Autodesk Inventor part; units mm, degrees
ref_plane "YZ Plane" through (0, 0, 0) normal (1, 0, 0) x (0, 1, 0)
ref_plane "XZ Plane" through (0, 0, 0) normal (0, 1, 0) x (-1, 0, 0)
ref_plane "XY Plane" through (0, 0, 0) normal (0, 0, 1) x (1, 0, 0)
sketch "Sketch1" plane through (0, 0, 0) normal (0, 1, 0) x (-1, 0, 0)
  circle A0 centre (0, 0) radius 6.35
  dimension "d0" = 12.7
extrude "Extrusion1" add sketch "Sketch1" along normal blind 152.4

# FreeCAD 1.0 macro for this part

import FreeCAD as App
import Part
import Sketcher
Q = App.Units.Quantity

doc = App.newDocument("Part")
body = doc.addObject("PartDesign::Body", "Body")

sketch1 = doc.addObject("Sketcher::SketchObject", "Sketch")
body.addObject(sketch1)
sketch1.AttachmentSupport = (doc.XZ_Plane, [""])
sketch1.MapMode = "FlatFace"
sketch1.addGeometry(Part.Circle(App.Vector(0, 0, 0), App.Vector(0, 0, 1), 6), False)
sketch1.addConstraint(Sketcher.Constraint("Coincident", 0, 3, -1, 1))
sketch1.addConstraint(Sketcher.Constraint("Diameter", 0, Q("0.5 in")))
pad1 = doc.addObject("PartDesign::Pad", "Pad")
body.addObject(pad1)
pad1.Profile = sketch1
pad1.Length = Q("6 in")
pad1.Reversed = True

doc.recompute()
